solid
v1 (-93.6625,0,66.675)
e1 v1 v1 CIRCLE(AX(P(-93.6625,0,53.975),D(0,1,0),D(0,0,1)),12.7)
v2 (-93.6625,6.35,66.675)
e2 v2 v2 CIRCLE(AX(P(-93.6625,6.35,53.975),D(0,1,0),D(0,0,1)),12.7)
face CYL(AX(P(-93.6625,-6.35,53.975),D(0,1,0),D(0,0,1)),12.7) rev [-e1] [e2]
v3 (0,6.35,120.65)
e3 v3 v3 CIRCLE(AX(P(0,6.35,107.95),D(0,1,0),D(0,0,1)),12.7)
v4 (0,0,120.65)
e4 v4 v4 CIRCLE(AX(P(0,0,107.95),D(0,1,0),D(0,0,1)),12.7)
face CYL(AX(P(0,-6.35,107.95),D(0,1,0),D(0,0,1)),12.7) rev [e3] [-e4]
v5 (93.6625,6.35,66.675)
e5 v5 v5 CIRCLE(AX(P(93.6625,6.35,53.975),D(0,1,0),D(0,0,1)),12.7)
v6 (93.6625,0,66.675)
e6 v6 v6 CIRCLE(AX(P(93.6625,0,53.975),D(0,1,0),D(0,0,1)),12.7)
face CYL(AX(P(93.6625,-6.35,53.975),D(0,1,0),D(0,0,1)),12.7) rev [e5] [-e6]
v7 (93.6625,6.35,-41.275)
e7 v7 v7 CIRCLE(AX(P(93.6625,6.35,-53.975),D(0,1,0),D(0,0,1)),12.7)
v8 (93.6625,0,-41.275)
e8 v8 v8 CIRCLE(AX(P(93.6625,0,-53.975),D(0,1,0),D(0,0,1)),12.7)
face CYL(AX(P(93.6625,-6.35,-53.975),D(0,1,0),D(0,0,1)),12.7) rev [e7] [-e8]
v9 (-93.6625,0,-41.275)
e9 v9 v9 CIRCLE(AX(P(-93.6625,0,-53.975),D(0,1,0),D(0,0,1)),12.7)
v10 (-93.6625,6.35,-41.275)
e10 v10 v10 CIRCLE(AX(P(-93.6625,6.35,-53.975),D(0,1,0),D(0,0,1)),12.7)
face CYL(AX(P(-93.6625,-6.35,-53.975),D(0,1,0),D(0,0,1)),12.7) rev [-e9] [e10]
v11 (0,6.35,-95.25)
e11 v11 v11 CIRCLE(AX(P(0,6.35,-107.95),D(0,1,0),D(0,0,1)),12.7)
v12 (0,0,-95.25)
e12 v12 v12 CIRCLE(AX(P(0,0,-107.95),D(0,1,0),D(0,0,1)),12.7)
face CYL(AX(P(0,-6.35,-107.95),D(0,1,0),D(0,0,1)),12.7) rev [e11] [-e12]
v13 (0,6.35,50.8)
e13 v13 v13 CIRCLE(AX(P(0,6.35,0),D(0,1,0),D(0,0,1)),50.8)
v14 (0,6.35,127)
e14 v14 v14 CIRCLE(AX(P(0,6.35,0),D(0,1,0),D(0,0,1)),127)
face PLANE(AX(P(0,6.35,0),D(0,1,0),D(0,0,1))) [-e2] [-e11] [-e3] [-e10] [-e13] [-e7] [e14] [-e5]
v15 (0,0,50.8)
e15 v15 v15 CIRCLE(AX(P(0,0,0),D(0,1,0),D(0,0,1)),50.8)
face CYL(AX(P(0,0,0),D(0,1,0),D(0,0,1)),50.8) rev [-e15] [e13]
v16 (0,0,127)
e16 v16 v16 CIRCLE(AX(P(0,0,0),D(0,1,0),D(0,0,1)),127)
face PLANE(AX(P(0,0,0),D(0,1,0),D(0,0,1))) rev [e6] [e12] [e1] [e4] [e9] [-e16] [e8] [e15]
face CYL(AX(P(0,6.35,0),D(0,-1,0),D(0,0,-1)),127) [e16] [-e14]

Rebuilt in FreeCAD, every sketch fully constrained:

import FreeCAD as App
import Part
import Sketcher
Q = App.Units.Quantity

doc = App.newDocument("Part")
body = doc.addObject("PartDesign::Body", "Body")

# Sketch on XZ plane
sketch1 = body.newObject("Sketcher::SketchObject", "Sketch")
sketch1.AttachmentSupport = (doc.getObject("XZ_Plane"), [""])
sketch1.MapMode = "FlatFace"
sketch1.addGeometry(Part.Circle(App.Vector(0, 0, 0), App.Vector(0, 0, 1), 127), False)
sketch1.addConstraint([
    Sketcher.Constraint("Coincident", 0, 3, -1, 1),
    Sketcher.Constraint("Diameter", 0, Q("10 in")),
])
pad1 = body.newObject("PartDesign::Pad", "Pad")
pad1.Profile = sketch1
pad1.Length = Q("0.25 in")
pad1.Reversed = True

# Sketch on XZ plane
sketch2 = body.newObject("Sketcher::SketchObject", "Sketch001")
sketch2.AttachmentSupport = (doc.getObject("XZ_Plane"), [""])
sketch2.MapMode = "FlatFace"
sketch2.AttachmentOffset = App.Placement(App.Vector(0, 0, -0.25 * 25.4), App.Rotation())
sketch2.addGeometry(Part.Circle(App.Vector(0, 0, 0), App.Vector(0, 0, 1), 51), False)
sketch2.addConstraint([
    Sketcher.Constraint("Coincident", 0, 3, -1, 1),
    Sketcher.Constraint("Diameter", 0, Q("4 in")),
])
pocket1 = body.newObject("PartDesign::Pocket", "Pocket")
pocket1.Profile = sketch2
pocket1.Length = Q("0.25 in")
pocket1.Reversed = True

# Sketch on XZ plane
sketch3 = body.newObject("Sketcher::SketchObject", "Sketch002")
sketch3.AttachmentSupport = (doc.getObject("XZ_Plane"), [""])
sketch3.MapMode = "FlatFace"
sketch3.AttachmentOffset = App.Placement(App.Vector(0, 0, -0.25 * 25.4), App.Rotation())
sketch3.addGeometry([
    Part.Circle(App.Vector(0, -108, 0), App.Vector(0, 0, 1), 13),  # 0
    Part.Circle(App.Vector(94, -54, 0), App.Vector(0, 0, 1), 13),  # 1
    Part.Circle(App.Vector(0, 108, 0), App.Vector(0, 0, 1), 13),  # 2
    Part.Circle(App.Vector(-94, -54, 0), App.Vector(0, 0, 1), 13),  # 3
    Part.Circle(App.Vector(-94, 54, 0), App.Vector(0, 0, 1), 13),  # 4
    Part.Circle(App.Vector(94, 54, 0), App.Vector(0, 0, 1), 13),  # 5
], False)
sketch3.addConstraint([
    Sketcher.Constraint("Equal", 0, 1),
    Sketcher.Constraint("Equal", 1, 2),
    Sketcher.Constraint("Equal", 2, 3),
    Sketcher.Constraint("Equal", 3, 4),
    Sketcher.Constraint("Equal", 4, 5),
    Sketcher.Constraint("Symmetric", 0, 3, 2, 3, -1, 1),
    Sketcher.Constraint("Symmetric", 1, 3, 4, 3, -1, 1),
    Sketcher.Constraint("Symmetric", 3, 3, 5, 3, -1, 1),
    Sketcher.Constraint("Symmetric", 1, 3, 3, 3, -2),
    Sketcher.Constraint("PointOnObject", 0, 3, -2),
    Sketcher.Constraint("Diameter", 0, Q("1 in")),
    Sketcher.Constraint("DistanceY", 0, 3, 2, 3, Q("8.5 in")),
    Sketcher.Constraint("DistanceY", 3, 3, 4, 3, Q("4.25 in")),
    Sketcher.Constraint("DistanceX", -1, 1, 1, 3, Q("3.6875 in")),
])
pocket2 = body.newObject("PartDesign::Pocket", "Pocket001")
pocket2.Profile = sketch3
pocket2.Length = Q("0.5 in")
pocket2.Reversed = True

doc.recompute()
